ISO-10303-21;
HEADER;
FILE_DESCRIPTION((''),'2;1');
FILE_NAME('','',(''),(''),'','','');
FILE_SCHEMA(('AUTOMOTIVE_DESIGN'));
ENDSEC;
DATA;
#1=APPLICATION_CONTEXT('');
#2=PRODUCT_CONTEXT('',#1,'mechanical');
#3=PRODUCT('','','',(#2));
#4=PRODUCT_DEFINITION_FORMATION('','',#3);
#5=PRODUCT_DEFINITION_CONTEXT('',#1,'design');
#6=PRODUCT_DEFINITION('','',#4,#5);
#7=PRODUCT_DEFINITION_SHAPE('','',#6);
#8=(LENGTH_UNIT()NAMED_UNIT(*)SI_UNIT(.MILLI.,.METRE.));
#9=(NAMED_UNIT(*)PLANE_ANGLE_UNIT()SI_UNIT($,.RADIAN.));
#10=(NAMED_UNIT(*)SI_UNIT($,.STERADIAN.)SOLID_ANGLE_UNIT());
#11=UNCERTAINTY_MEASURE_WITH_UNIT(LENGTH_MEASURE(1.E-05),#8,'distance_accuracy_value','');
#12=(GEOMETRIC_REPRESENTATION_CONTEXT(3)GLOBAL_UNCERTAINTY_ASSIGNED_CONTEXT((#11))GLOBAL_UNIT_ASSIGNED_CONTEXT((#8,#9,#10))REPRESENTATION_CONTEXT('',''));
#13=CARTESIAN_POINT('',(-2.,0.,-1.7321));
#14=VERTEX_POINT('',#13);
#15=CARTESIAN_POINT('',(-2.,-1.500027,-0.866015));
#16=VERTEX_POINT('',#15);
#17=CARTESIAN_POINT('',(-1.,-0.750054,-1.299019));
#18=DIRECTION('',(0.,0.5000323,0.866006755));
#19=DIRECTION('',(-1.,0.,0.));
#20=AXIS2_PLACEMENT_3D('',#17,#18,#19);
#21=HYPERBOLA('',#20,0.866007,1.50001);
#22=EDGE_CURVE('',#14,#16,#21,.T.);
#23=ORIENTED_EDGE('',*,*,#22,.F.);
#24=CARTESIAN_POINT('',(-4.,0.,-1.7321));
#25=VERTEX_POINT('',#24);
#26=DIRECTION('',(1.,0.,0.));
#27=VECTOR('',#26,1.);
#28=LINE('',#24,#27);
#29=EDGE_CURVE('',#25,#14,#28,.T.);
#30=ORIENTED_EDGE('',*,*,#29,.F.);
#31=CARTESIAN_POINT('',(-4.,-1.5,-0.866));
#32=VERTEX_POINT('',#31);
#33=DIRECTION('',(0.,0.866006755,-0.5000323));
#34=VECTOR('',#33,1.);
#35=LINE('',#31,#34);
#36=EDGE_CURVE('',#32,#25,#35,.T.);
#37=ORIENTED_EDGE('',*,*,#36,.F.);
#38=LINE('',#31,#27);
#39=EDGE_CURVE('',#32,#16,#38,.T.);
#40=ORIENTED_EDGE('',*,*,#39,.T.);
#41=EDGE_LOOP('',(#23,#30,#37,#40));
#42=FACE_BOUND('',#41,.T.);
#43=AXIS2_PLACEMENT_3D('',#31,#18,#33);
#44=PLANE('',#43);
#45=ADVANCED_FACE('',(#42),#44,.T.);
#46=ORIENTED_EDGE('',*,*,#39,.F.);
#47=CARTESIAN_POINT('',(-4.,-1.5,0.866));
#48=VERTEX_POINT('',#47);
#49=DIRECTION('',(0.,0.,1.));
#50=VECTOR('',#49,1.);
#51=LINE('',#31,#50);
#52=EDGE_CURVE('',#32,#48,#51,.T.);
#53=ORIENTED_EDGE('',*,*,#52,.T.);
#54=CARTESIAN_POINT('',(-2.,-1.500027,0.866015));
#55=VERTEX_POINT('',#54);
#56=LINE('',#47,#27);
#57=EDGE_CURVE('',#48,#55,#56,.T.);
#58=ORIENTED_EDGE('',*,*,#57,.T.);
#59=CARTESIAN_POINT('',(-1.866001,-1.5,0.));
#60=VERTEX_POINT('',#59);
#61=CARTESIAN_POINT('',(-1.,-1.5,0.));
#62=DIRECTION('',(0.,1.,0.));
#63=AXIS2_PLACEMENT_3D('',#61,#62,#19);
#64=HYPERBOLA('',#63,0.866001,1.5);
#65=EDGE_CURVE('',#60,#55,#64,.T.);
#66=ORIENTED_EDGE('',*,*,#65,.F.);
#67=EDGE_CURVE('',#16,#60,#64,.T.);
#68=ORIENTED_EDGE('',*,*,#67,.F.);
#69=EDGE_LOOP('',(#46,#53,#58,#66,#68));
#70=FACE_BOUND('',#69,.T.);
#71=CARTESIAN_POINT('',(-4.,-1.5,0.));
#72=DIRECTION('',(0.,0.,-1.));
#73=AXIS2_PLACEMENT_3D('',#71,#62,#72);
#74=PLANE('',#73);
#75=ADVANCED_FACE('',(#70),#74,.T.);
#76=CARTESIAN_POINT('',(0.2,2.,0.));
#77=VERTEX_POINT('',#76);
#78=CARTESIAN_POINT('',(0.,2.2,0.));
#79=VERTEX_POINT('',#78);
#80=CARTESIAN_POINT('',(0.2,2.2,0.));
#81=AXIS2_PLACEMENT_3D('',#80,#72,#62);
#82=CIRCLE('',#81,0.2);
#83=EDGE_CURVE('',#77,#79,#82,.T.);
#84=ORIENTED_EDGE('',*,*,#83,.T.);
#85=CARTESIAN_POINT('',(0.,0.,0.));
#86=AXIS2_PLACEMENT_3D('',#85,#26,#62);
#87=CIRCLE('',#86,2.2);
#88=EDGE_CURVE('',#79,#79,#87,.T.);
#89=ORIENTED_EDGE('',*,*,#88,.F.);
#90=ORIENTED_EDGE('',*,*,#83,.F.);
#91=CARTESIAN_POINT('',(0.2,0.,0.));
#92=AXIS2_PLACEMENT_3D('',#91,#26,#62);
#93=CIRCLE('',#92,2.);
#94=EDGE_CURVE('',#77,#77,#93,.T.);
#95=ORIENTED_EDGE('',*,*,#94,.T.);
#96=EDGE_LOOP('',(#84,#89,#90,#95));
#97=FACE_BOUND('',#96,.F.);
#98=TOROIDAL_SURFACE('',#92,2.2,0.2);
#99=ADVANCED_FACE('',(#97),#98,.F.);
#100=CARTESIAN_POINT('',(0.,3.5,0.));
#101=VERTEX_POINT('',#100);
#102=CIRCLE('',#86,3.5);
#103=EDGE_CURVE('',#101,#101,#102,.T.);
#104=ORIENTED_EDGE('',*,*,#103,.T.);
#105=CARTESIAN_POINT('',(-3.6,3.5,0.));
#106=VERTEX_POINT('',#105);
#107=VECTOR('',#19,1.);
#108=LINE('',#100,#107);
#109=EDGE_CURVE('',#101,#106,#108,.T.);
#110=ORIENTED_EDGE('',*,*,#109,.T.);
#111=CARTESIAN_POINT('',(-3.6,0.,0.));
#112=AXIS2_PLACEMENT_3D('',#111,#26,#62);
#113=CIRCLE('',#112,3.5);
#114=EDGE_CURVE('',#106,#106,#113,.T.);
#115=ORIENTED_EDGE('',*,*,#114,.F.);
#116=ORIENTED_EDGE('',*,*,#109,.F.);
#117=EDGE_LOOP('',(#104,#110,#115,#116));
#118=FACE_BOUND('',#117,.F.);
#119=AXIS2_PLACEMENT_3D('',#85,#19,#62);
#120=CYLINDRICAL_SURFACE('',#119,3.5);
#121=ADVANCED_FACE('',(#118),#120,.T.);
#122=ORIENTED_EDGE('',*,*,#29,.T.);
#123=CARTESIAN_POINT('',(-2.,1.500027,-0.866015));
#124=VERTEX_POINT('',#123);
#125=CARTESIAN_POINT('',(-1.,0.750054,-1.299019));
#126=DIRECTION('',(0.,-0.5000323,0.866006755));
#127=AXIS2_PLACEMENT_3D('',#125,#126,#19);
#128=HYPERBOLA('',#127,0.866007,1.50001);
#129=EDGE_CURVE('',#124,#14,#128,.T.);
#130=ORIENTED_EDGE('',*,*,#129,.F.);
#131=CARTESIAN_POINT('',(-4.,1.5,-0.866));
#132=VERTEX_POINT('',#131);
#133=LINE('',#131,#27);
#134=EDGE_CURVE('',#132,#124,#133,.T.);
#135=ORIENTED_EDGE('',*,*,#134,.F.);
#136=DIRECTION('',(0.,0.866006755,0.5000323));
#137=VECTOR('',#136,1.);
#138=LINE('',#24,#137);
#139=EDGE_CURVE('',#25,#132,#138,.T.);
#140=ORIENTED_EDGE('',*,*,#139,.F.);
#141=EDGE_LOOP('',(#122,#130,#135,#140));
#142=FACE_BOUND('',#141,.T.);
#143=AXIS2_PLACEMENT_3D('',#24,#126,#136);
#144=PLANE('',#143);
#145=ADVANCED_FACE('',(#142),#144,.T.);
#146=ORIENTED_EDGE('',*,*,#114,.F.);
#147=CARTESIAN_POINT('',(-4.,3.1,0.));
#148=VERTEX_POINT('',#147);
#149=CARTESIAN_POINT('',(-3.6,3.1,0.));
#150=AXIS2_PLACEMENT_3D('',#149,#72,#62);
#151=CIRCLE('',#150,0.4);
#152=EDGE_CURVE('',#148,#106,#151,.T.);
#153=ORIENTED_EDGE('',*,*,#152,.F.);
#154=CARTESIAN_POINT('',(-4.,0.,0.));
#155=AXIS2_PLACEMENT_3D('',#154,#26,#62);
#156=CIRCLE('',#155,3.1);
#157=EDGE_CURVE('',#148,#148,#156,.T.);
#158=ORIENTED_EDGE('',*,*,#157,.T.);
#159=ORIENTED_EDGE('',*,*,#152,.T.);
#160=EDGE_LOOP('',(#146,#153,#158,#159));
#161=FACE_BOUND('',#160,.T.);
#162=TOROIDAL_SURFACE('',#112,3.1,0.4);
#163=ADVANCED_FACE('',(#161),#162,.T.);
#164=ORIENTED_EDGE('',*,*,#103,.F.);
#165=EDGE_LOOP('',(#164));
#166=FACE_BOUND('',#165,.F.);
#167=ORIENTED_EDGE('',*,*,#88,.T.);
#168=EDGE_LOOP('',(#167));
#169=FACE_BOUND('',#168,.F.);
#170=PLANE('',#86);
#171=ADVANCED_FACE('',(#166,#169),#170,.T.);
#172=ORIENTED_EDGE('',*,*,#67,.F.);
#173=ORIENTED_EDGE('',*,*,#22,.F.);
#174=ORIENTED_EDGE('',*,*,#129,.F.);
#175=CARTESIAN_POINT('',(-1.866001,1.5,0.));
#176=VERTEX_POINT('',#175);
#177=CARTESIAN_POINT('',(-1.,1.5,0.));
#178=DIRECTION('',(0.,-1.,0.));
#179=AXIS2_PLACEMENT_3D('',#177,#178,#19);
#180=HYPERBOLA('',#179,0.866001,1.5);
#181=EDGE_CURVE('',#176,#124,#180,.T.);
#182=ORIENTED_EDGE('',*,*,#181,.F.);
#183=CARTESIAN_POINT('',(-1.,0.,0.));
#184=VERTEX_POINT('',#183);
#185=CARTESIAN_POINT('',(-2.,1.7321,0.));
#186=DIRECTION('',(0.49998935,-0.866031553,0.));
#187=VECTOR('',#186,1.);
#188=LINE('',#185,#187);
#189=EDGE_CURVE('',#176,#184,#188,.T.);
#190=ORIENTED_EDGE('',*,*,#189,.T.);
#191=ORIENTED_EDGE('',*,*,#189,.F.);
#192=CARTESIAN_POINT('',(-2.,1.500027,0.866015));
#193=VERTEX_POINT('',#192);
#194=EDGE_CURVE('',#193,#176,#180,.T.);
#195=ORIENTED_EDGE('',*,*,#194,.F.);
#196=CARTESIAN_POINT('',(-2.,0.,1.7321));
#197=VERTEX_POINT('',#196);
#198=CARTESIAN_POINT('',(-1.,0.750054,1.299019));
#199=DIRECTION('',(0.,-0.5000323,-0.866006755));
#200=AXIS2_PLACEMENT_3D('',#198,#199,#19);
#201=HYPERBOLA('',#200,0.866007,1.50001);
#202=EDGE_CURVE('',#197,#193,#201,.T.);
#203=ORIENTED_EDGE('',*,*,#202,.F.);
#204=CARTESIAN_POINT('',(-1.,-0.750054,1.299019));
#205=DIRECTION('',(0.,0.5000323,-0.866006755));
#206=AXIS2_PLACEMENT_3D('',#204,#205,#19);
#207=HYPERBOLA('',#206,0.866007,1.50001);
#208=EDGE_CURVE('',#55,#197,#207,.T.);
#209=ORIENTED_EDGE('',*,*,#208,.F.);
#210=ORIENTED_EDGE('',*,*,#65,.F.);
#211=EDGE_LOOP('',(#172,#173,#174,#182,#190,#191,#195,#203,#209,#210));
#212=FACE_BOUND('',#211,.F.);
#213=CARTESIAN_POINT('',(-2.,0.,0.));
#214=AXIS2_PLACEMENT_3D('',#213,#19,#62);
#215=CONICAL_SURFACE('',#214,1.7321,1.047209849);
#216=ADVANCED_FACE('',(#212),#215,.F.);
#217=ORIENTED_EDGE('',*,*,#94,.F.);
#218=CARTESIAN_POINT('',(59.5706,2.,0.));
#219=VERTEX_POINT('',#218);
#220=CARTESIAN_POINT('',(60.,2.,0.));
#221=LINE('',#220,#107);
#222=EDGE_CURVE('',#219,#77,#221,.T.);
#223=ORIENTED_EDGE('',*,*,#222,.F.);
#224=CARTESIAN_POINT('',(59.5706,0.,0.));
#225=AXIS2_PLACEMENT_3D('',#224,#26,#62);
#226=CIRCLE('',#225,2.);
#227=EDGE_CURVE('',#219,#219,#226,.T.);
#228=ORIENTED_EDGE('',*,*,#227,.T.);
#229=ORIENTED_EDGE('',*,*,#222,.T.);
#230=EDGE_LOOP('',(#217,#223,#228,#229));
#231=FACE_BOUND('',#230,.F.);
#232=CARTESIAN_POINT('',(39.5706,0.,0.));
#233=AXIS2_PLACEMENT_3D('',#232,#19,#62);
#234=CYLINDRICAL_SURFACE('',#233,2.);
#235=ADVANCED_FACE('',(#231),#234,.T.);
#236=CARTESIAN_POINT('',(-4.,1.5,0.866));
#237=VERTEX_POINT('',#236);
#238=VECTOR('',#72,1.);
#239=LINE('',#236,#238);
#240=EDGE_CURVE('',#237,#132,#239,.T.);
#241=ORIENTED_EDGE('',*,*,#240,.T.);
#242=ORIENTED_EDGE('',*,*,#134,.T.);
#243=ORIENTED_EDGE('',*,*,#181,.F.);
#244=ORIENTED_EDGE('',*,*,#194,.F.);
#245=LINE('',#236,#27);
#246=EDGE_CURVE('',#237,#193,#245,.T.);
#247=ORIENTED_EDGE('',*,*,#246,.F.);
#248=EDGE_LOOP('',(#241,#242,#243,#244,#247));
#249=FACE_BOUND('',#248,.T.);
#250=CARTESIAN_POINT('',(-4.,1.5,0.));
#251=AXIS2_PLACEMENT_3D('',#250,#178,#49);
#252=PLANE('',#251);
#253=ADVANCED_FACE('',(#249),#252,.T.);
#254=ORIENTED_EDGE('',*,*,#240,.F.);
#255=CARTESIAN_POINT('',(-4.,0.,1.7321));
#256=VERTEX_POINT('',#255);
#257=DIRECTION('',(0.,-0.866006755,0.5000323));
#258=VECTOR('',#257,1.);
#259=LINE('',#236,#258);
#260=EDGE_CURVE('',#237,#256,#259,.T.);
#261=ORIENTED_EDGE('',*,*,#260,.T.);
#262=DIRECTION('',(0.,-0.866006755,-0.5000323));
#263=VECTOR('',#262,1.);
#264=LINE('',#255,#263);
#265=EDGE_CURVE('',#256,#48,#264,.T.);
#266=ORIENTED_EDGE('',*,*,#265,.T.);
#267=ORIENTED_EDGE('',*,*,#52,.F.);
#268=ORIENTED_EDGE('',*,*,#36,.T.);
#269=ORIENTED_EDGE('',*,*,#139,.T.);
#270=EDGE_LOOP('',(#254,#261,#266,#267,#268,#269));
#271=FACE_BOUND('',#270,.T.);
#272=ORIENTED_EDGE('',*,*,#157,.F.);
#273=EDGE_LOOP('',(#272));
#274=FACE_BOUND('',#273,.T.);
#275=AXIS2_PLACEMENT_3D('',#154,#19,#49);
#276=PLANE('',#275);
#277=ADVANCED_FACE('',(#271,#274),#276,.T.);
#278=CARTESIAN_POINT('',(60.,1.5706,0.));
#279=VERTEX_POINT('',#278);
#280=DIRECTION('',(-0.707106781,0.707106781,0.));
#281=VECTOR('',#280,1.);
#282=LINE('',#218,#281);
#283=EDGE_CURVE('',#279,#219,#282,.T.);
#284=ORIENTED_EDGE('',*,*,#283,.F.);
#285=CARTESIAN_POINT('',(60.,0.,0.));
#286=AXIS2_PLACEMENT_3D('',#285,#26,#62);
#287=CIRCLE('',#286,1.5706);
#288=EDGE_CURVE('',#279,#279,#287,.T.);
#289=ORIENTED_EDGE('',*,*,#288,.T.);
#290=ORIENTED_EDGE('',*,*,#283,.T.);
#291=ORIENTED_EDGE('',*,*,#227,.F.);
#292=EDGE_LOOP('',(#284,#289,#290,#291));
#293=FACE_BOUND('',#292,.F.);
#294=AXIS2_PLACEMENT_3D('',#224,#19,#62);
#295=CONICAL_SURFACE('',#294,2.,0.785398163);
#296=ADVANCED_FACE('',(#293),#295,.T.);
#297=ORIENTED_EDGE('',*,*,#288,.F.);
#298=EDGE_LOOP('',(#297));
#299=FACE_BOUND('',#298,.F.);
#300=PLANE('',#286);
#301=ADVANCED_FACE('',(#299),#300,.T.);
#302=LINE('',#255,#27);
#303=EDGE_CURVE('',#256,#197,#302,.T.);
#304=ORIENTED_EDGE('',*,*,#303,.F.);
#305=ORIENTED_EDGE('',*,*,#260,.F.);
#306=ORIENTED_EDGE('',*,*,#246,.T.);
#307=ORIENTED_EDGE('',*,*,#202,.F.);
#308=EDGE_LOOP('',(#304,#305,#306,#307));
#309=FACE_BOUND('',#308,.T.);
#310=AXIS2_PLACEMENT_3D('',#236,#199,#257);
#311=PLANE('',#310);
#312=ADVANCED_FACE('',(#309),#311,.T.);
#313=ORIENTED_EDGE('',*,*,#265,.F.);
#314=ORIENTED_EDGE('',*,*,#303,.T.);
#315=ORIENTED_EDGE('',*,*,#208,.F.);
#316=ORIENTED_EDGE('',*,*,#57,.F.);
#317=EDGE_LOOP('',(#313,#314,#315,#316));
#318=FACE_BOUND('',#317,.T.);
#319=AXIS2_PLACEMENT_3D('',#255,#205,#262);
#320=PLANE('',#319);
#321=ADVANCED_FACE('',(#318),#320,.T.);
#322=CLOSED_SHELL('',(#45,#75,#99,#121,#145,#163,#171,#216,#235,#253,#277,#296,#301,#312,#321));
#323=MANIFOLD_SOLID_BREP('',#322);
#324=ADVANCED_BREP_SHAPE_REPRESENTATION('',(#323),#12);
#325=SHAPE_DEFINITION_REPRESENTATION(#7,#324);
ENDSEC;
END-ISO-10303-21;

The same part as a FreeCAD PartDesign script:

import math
import FreeCAD as App
import Part
import Sketcher

V = App.Vector
Q = App.Units.Quantity


def edges_at(feature, points):
    """Names of the edges that pass closest to the given points."""
    edges = feature.Shape.Edges
    near = lambda p: min(range(len(edges)), key=lambda i: edges[i].distToShape(Part.Vertex(*p))[0])
    return sorted({f"Edge{near(p) + 1}" for p in points})


def add_polygon(sketch, points):
    """Adds a closed chain of lines whose ends are joined by coincident constraints."""
    first, n = sketch.GeometryCount, len(points)
    for a, b in zip(points, points[1:] + points[:1]):
        sketch.addGeometry(Part.LineSegment(App.Vector(*a, 0), App.Vector(*b, 0)), False)
    for i in range(n):
        sketch.addConstraint(Sketcher.Constraint("Coincident", first + i, 2, first + (i + 1) % n, 1))

doc = App.newDocument("Part")
body = doc.addObject("PartDesign::Body", "Body")

sketch1 = doc.addObject("Sketcher::SketchObject", "Sketch")
body.addObject(sketch1)
sketch1.AttachmentSupport = (doc.XY_Plane, [""])
sketch1.MapMode = "FlatFace"
add_polygon(sketch1, [(-2, 1.7), (-1, 0), (60, 0), (60, 2), (0, 2), (0, 3.5), (-4, 3.5), (-4, 1.7)])
sketch1.addConstraint([
    Sketcher.Constraint("Horizontal", 1),
    Sketcher.Constraint("Vertical", 2),
    Sketcher.Constraint("Horizontal", 3),
    Sketcher.Constraint("Vertical", 4),
    Sketcher.Constraint("Horizontal", 5),
    Sketcher.Constraint("Vertical", 6),
    Sketcher.Constraint("Horizontal", 7),
    Sketcher.Constraint("PointOnObject", 0, 2, -1),
    Sketcher.Constraint("PointOnObject", 3, 2, -2),
    Sketcher.Constraint("Equal", 7, 2),
    Sketcher.Constraint("DistanceX", 3, 2, 3, 1, Q("60 mm")),
    Sketcher.Constraint("DistanceX", 5, 2, 5, 1, Q("4 mm")),
    Sketcher.Constraint("DistanceX", 7, 1, 7, 2, Q("2 mm")),
    Sketcher.Constraint("Distance", 0, Q("2 mm")),
    Sketcher.Constraint("DistanceX", 1, 1, 1, 2, Q("61 mm")),
    Sketcher.Constraint("DistanceY", 4, 1, 4, 2, Q("1.5 mm")),
])
revolution = doc.addObject("PartDesign::Revolution", "Revolution")
body.addObject(revolution)
revolution.Profile = sketch1
revolution.ReferenceAxis = (sketch1, ["H_Axis"])
revolution.Angle = 360

sketch2 = doc.addObject("Sketcher::SketchObject", "Sketch001")
body.addObject(sketch2)
sketch2.AttachmentSupport = (doc.YZ_Plane, [""])
sketch2.MapMode = "FlatFace"
sketch2.AttachmentOffset = App.Placement(V(0, 0, -4), App.Rotation())
sketch2.addGeometry([
    Part.LineSegment(V(1.5, 0.9, 0), V(0, 1.7, 0)),
    Part.ArcOfCircle(Part.Circle(V(0, 0, 0), V(0, 0, 1), 1.7), math.radians(30), math.radians(90)),
    Part.ArcOfCircle(Part.Circle(V(0, 0, 0), V(0, 0, 1), 1.7), math.radians(90), math.radians(150)),
    Part.LineSegment(V(0, 1.7, 0), V(-1.5, 0.9, 0)),
    Part.ArcOfCircle(Part.Circle(V(0, 0, 0), V(0, 0, 1), 1.7), math.radians(-30), math.radians(30)),
    Part.LineSegment(V(1.5, 0.9, 0), V(1.5, -0.9, 0)),
    Part.LineSegment(V(-1.5, 0.9, 0), V(-1.5, -0.9, 0)),
    Part.ArcOfCircle(Part.Circle(V(0, 0, 0), V(0, 0, 1), 1.7), math.radians(150), math.radians(210)),
    Part.LineSegment(V(-1.5, -0.9, 0), V(0, -1.7, 0)),
    Part.ArcOfCircle(Part.Circle(V(0, 0, 0), V(0, 0, 1), 1.7), math.radians(-150), math.radians(-90)),
    Part.ArcOfCircle(Part.Circle(V(0, 0, 0), V(0, 0, 1), 1.7), math.radians(-90), math.radians(-30)),
    Part.LineSegment(V(0, -1.7, 0), V(1.5, -0.9, 0)),
], False)
sketch2.addConstraint([
    Sketcher.Constraint("Coincident", 0, 1, 1, 1),
    Sketcher.Constraint("Coincident", 1, 2, 0, 2),
    Sketcher.Constraint("Coincident", 2, 1, 3, 1),
    Sketcher.Constraint("Coincident", 3, 2, 2, 2),
    Sketcher.Constraint("Coincident", 4, 1, 5, 2),
    Sketcher.Constraint("Coincident", 5, 1, 4, 2),
    Sketcher.Constraint("Coincident", 6, 1, 7, 1),
    Sketcher.Constraint("Coincident", 7, 2, 6, 2),
    Sketcher.Constraint("Coincident", 8, 1, 9, 1),
    Sketcher.Constraint("Coincident", 9, 2, 8, 2),
    Sketcher.Constraint("Coincident", 10, 1, 11, 1),
    Sketcher.Constraint("Coincident", 11, 2, 10, 2),
    Sketcher.Constraint("Vertical", 5),
    Sketcher.Constraint("Vertical", 6),
    Sketcher.Constraint("Coincident", 1, 3, -1, 1),
    Sketcher.Constraint("Coincident", 2, 3, -1, 1),
    Sketcher.Constraint("Coincident", 4, 3, -1, 1),
    Sketcher.Constraint("Coincident", 7, 3, -1, 1),
    Sketcher.Constraint("Coincident", 9, 3, -1, 1),
    Sketcher.Constraint("Coincident", 10, 3, -1, 1),
    Sketcher.Constraint("Coincident", 2, 1, 1, 2),
    Sketcher.Constraint("Coincident", 5, 1, 0, 1),
    Sketcher.Constraint("Coincident", 6, 1, 3, 2),
    Sketcher.Constraint("Coincident", 8, 1, 7, 2),
    Sketcher.Constraint("Coincident", 10, 1, 9, 2),
    Sketcher.Constraint("PointOnObject", 1, 2, -2),
    Sketcher.Constraint("PointOnObject", 9, 2, -2),
    Sketcher.Constraint("Parallel", 0, 8),
    Sketcher.Constraint("Parallel", 3, 11),
    Sketcher.Constraint("Radius", 1, Q("1.732 mm")),
    Sketcher.Constraint("DistanceX", -1, 1, 0, 1, Q("1.5 mm")),
])
pad1 = doc.addObject("PartDesign::Pad", "Pad")
body.addObject(pad1)
pad1.Profile = sketch2
pad1.Type = "UpToFirst"
doc.recompute()

fillet = doc.addObject("PartDesign::Fillet", "Fillet")
body.addObject(fillet)
fillet.Base = (pad1, edges_at(pad1, [(-4, -3.5, 0)]))
fillet.Radius = 0.4
doc.recompute()

chamfer = doc.addObject("PartDesign::Chamfer", "Chamfer")
body.addObject(chamfer)
chamfer.Base = (fillet, edges_at(fillet, [(60, -2, 0)]))
chamfer.ChamferType = "Two distances"
chamfer.Size = 0.4294
chamfer.Size2 = 0.4294
doc.recompute()

fillet2 = doc.addObject("PartDesign::Fillet", "Fillet001")
body.addObject(fillet2)
fillet2.Base = (chamfer, edges_at(chamfer, [(0, -2, 0)]))
fillet2.Radius = 0.2

doc.recompute()
